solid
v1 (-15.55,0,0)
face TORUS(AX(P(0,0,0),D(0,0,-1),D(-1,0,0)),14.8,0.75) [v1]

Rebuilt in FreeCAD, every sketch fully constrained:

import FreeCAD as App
import Part
import Sketcher
Q = App.Units.Quantity

doc = App.newDocument("Part")
body = doc.addObject("PartDesign::Body", "Body")

# Sketch on XZ plane
sketch1 = doc.addObject("Sketcher::SketchObject", "Sketch")
body.addObject(sketch1)
sketch1.AttachmentSupport = (doc.XZ_Plane, [""])
sketch1.MapMode = "FlatFace"
sketch1.addGeometry(Part.Circle(App.Vector(14.8, 0, 0), App.Vector(0, 0, 1), 0.8), False)
sketch1.addConstraint([
    Sketcher.Constraint("PointOnObject", 0, 3, -1),
    Sketcher.Constraint("Diameter", 0, Q("1.5 mm")),
    Sketcher.Constraint("DistanceX", -1, 1, 0, 3, Q("14.8 mm")),
])
revolution = doc.addObject("PartDesign::Revolution", "Revolution")
body.addObject(revolution)
revolution.Profile = sketch1
revolution.ReferenceAxis = (sketch1, ["V_Axis"])
revolution.Angle = 360

doc.recompute()
